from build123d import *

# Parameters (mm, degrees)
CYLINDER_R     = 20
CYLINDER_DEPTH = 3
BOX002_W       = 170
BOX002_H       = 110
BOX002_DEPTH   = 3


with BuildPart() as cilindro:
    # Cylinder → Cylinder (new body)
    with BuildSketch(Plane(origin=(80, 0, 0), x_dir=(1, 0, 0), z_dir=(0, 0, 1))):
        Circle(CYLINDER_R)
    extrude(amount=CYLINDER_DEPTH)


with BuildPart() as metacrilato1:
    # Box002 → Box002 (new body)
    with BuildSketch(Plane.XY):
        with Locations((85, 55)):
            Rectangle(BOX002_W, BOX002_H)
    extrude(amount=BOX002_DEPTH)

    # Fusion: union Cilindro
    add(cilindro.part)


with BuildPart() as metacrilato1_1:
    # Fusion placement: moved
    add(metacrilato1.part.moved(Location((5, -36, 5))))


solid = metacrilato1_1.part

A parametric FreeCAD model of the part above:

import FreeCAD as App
import Part
import Sketcher


def add_polygon(sketch, points):
    """Adds a closed chain of lines whose ends are joined by coincident constraints."""
    first, n = sketch.GeometryCount, len(points)
    for a, b in zip(points, points[1:] + points[:1]):
        sketch.addGeometry(Part.LineSegment(App.Vector(*a, 0), App.Vector(*b, 0)), False)
    for i in range(n):
        sketch.addConstraint(Sketcher.Constraint("Coincident", first + i, 2, first + (i + 1) % n, 1))

doc = App.newDocument("Part")
body = doc.addObject("PartDesign::Body", "Body")

# Sketch on XY plane
sketch1 = body.newObject("Sketcher::SketchObject", "Sketch")
sketch1.AttachmentSupport = (doc.getObject("XY_Plane"), [""])
sketch1.MapMode = "FlatFace"
sketch1.addGeometry(Part.Circle(App.Vector(80, 0, 0), App.Vector(0, 0, 1), 20), False)
sketch1.addConstraint(Sketcher.Constraint("PointOnObject", 0, 3, -1))
sketch1.addConstraint(Sketcher.Constraint("Diameter", 0, 40.0))
sketch1.addConstraint(Sketcher.Constraint("DistanceX", -1, 1, 0, 3, 80.0))
pad1 = body.newObject("PartDesign::Pad", "Pad")
pad1.Profile = sketch1
pad1.Length = 3
body2 = doc.addObject("PartDesign::Body", "Body001")

# Sketch on XY plane
sketch2 = body2.newObject("Sketcher::SketchObject", "Sketch001")
sketch2.AttachmentSupport = (doc.getObject("XY_Plane001"), [""])
sketch2.MapMode = "FlatFace"
add_polygon(sketch2, [(0, 110), (0, 0), (170, 0), (170, 110)])  # lines 0-3
sketch2.addConstraint(Sketcher.Constraint("Vertical", 0))
sketch2.addConstraint(Sketcher.Constraint("Horizontal", 1))
sketch2.addConstraint(Sketcher.Constraint("Vertical", 2))
sketch2.addConstraint(Sketcher.Constraint("Horizontal", 3))
sketch2.addConstraint(Sketcher.Constraint("Coincident", 0, 2, -1, 1))
sketch2.addConstraint(Sketcher.Constraint("DistanceX", 1, 1, 1, 2, 170.0))
sketch2.addConstraint(Sketcher.Constraint("DistanceY", 0, 2, 0, 1, 110.0))
pad2 = body2.newObject("PartDesign::Pad", "Pad001")
pad2.Profile = sketch2
pad2.Length = 3
doc.recompute()

boolean = body2.newObject("PartDesign::Boolean", "Boolean")
boolean.Type = "Fuse"
boolean.addObjects([body])
body3 = doc.addObject("PartDesign::Body", "Body002")
doc.recompute()

body2.Placement = App.Placement(App.Vector(5, -36, 5), App.Rotation(App.Vector(0, 0, 1), 0))
boolean2 = body3.newObject("PartDesign::Boolean", "Boolean001")
boolean2.Type = "Fuse"
boolean2.addObjects([body2])

doc.recompute()
